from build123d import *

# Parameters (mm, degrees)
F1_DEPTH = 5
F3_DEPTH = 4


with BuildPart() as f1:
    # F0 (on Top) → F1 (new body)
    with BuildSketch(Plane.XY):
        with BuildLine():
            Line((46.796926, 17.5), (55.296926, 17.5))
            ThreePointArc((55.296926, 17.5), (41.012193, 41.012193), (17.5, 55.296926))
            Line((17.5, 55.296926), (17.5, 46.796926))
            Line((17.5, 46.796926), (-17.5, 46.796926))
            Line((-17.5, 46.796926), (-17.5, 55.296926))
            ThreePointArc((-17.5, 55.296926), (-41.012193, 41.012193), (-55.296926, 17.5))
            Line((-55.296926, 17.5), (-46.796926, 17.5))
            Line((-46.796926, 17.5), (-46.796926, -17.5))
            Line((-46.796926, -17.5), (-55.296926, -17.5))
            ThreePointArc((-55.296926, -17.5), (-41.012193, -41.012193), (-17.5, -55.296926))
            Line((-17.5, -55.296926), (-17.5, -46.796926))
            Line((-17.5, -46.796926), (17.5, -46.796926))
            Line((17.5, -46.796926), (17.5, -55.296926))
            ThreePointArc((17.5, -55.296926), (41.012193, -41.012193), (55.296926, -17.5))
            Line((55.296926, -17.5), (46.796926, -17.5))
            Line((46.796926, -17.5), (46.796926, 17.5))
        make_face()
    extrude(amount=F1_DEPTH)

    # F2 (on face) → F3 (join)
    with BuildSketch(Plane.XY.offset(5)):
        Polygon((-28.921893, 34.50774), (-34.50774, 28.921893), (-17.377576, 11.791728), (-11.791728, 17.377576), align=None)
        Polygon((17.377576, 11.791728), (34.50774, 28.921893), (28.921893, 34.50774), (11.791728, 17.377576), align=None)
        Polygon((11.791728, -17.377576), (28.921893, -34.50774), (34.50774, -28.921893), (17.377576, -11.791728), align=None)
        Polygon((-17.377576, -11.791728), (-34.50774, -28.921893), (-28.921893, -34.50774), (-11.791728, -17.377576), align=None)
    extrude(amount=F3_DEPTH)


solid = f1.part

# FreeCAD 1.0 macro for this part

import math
import FreeCAD as App
import Part
import Sketcher
from FreeCAD import Vector


def add_polygon(sketch, points):
    """Adds a closed chain of lines whose ends are joined by coincident constraints."""
    first, n = sketch.GeometryCount, len(points)
    for a, b in zip(points, points[1:] + points[:1]):
        sketch.addGeometry(Part.LineSegment(App.Vector(*a, 0), App.Vector(*b, 0)), False)
    for i in range(n):
        sketch.addConstraint(Sketcher.Constraint("Coincident", first + i, 2, first + (i + 1) % n, 1))

doc = App.newDocument("Part")
params = doc.addObject("Spreadsheet::Sheet", "Params")
for row, (alias, value) in enumerate([
    ("sketch1_width", "35 mm"),
    ("sketch1_width2", "8.5 mm"),
    ("pad1_length", "5 mm"),
    ("pad2_length", "4 mm"),
], start=1):
    params.set(f"A{row}", alias)
    params.set(f"B{row}", "=" + value)
    params.setAlias(f"B{row}", alias)

body = doc.addObject("PartDesign::Body", "Body")

# Sketch on XY plane
sketch1 = doc.addObject("Sketcher::SketchObject", "Sketch")
body.addObject(sketch1)
sketch1.AttachmentSupport = (doc.XY_Plane, [""])
sketch1.MapMode = "FlatFace"
sketch1.addGeometry(Part.LineSegment(Vector(47, 18, 0), Vector(55, 18, 0)), False)
sketch1.addGeometry(Part.ArcOfCircle(Part.Circle(Vector(0, 0, 0), Vector(0, 0, 1), 58), math.radians(18), math.radians(72)), False)
sketch1.addGeometry(Part.LineSegment(Vector(18, 55, 0), Vector(18, 47, 0)), False)
sketch1.addGeometry(Part.LineSegment(Vector(18, 47, 0), Vector(-18, 47, 0)), False)
sketch1.addGeometry(Part.LineSegment(Vector(-18, 47, 0), Vector(-18, 55, 0)), False)
sketch1.addGeometry(Part.ArcOfCircle(Part.Circle(Vector(0, 0, 0), Vector(0, 0, 1), 58), math.radians(108), math.radians(162)), False)
sketch1.addGeometry(Part.LineSegment(Vector(-55, 18, 0), Vector(-47, 18, 0)), False)
sketch1.addGeometry(Part.LineSegment(Vector(-47, 18, 0), Vector(-47, -18, 0)), False)
sketch1.addGeometry(Part.LineSegment(Vector(-47, -18, 0), Vector(-55, -18, 0)), False)
sketch1.addGeometry(Part.ArcOfCircle(Part.Circle(Vector(0, 0, 0), Vector(0, 0, 1), 58), math.radians(-162), math.radians(-108)), False)
sketch1.addGeometry(Part.LineSegment(Vector(-18, -55, 0), Vector(-18, -47, 0)), False)
sketch1.addGeometry(Part.LineSegment(Vector(-18, -47, 0), Vector(18, -47, 0)), False)
sketch1.addGeometry(Part.LineSegment(Vector(18, -47, 0), Vector(18, -55, 0)), False)
sketch1.addGeometry(Part.ArcOfCircle(Part.Circle(Vector(0, 0, 0), Vector(0, 0, 1), 58), math.radians(-72), math.radians(-18)), False)
sketch1.addGeometry(Part.LineSegment(Vector(55, -18, 0), Vector(47, -18, 0)), False)
sketch1.addGeometry(Part.LineSegment(Vector(47, -18, 0), Vector(47, 18, 0)), False)
sketch1.addConstraint(Sketcher.Constraint("Coincident", 0, 2, 1, 1))
sketch1.addConstraint(Sketcher.Constraint("Coincident", 1, 2, 2, 1))
sketch1.addConstraint(Sketcher.Constraint("Coincident", 2, 2, 3, 1))
sketch1.addConstraint(Sketcher.Constraint("Coincident", 3, 2, 4, 1))
sketch1.addConstraint(Sketcher.Constraint("Coincident", 4, 2, 5, 1))
sketch1.addConstraint(Sketcher.Constraint("Coincident", 5, 2, 6, 1))
sketch1.addConstraint(Sketcher.Constraint("Coincident", 6, 2, 7, 1))
sketch1.addConstraint(Sketcher.Constraint("Coincident", 7, 2, 8, 1))
sketch1.addConstraint(Sketcher.Constraint("Coincident", 8, 2, 9, 1))
sketch1.addConstraint(Sketcher.Constraint("Coincident", 9, 2, 10, 1))
sketch1.addConstraint(Sketcher.Constraint("Coincident", 10, 2, 11, 1))
sketch1.addConstraint(Sketcher.Constraint("Coincident", 11, 2, 12, 1))
sketch1.addConstraint(Sketcher.Constraint("Coincident", 12, 2, 13, 1))
sketch1.addConstraint(Sketcher.Constraint("Coincident", 13, 2, 14, 1))
sketch1.addConstraint(Sketcher.Constraint("Coincident", 14, 2, 15, 1))
sketch1.addConstraint(Sketcher.Constraint("Coincident", 15, 2, 0, 1))
sketch1.addConstraint(Sketcher.Constraint("Horizontal", 0))
sketch1.addConstraint(Sketcher.Constraint("Vertical", 2))
sketch1.addConstraint(Sketcher.Constraint("Horizontal", 3))
sketch1.addConstraint(Sketcher.Constraint("Vertical", 4))
sketch1.addConstraint(Sketcher.Constraint("Horizontal", 6))
sketch1.addConstraint(Sketcher.Constraint("Vertical", 7))
sketch1.addConstraint(Sketcher.Constraint("Horizontal", 8))
sketch1.addConstraint(Sketcher.Constraint("Vertical", 10))
sketch1.addConstraint(Sketcher.Constraint("Horizontal", 11))
sketch1.addConstraint(Sketcher.Constraint("Vertical", 12))
sketch1.addConstraint(Sketcher.Constraint("Horizontal", 14))
sketch1.addConstraint(Sketcher.Constraint("Vertical", 15))
sketch1.addConstraint(Sketcher.Constraint("Coincident", 1, 3, -1, 1))
sketch1.addConstraint(Sketcher.Constraint("Coincident", 5, 3, -1, 1))
sketch1.addConstraint(Sketcher.Constraint("Coincident", 9, 3, -1, 1))
sketch1.addConstraint(Sketcher.Constraint("Coincident", 13, 3, -1, 1))
sketch1.addConstraint(Sketcher.Constraint("Equal", 1, 5))
sketch1.addConstraint(Sketcher.Constraint("Equal", 5, 9))
sketch1.addConstraint(Sketcher.Constraint("Equal", 9, 13))
sketch1.addConstraint(Sketcher.Constraint("Symmetric", 2, 2, 10, 2, -1, 1))
sketch1.addConstraint(Sketcher.Constraint("Symmetric", 6, 2, 14, 2, -1, 1))
sketch1.addConstraint(Sketcher.Constraint("Horizontal", 1, 2, 4, 2))
sketch1.addConstraint(Sketcher.Constraint("Horizontal", 0, 2, 5, 2))
sketch1.addConstraint(Sketcher.Constraint("Horizontal", 9, 2, 12, 2))
sketch1.addConstraint(Sketcher.Constraint("Horizontal", 8, 2, 13, 2))
sketch1.addConstraint(Sketcher.Constraint("Equal", 14, 2))
sketch1.addConstraint(Sketcher.Constraint("Equal", 11, 7))
sketch1.addConstraint(Sketcher.Constraint("DistanceX", 3, 2, 3, 1, 35.0))
sketch1.addConstraint(Sketcher.Constraint("DistanceX", 0, 1, 0, 2, 8.5))
sketch1.addConstraint(Sketcher.Constraint("Radius", 1, 58.000005))
sketch1.setExpression("Constraints[43]", "Params.sketch1_width")
sketch1.setExpression("Constraints[44]", "Params.sketch1_width2")
pad1 = doc.addObject("PartDesign::Pad", "Pad")
body.addObject(pad1)
pad1.Profile = sketch1
pad1.setExpression("Length", "Params.pad1_length")

# Sketch on XY plane
sketch2 = doc.addObject("Sketcher::SketchObject", "Sketch001")
body.addObject(sketch2)
sketch2.AttachmentSupport = (doc.XY_Plane, [""])
sketch2.MapMode = "FlatFace"
sketch2.AttachmentOffset = App.Placement(Vector(0, 0, 5), App.Rotation())
add_polygon(sketch2, [(-29, 35), (-35, 29), (-17, 12), (-12, 17)])  # lines 0-3
add_polygon(sketch2, [(17, 12), (35, 29), (29, 35), (12, 17)])  # lines 4-7
add_polygon(sketch2, [(12, -17), (29, -35), (35, -29), (17, -12)])  # lines 8-11
add_polygon(sketch2, [(-17, -12), (-35, -29), (-29, -35), (-12, -17)])  # lines 12-15
sketch2.addConstraint(Sketcher.Constraint("Symmetric", 3, 2, 8, 2, -1, 1))
sketch2.addConstraint(Sketcher.Constraint("Symmetric", 0, 2, 9, 2, -1, 1))
sketch2.addConstraint(Sketcher.Constraint("Symmetric", 1, 2, 10, 2, -1, 1))
sketch2.addConstraint(Sketcher.Constraint("Symmetric", 2, 2, 11, 2, -1, 1))
sketch2.addConstraint(Sketcher.Constraint("Symmetric", 4, 2, 12, 2, -1, 1))
sketch2.addConstraint(Sketcher.Constraint("Symmetric", 5, 2, 13, 2, -1, 1))
sketch2.addConstraint(Sketcher.Constraint("Symmetric", 6, 2, 14, 2, -1, 1))
sketch2.addConstraint(Sketcher.Constraint("Symmetric", 7, 2, 15, 2, -1, 1))
sketch2.addConstraint(Sketcher.Constraint("Symmetric", 0, 2, 4, 2, -2))
sketch2.addConstraint(Sketcher.Constraint("Symmetric", 3, 2, 5, 2, -2))
sketch2.addConstraint(Sketcher.Constraint("Symmetric", 2, 2, 6, 2, -2))
sketch2.addConstraint(Sketcher.Constraint("Symmetric", 1, 2, 7, 2, -2))
sketch2.addConstraint(Sketcher.Constraint("Perpendicular", 0, 1))
sketch2.addConstraint(Sketcher.Constraint("Perpendicular", 1, 2))
sketch2.addConstraint(Sketcher.Constraint("Perpendicular", 2, 3))
sketch2.addConstraint(Sketcher.Constraint("Perpendicular", 3, 4))
sketch2.addConstraint(Sketcher.Constraint("Distance", 0, 7.899581))
sketch2.addConstraint(Sketcher.Constraint("Distance", 1, 24.225711))
sketch2.addConstraint(Sketcher.Constraint("DistanceX", 0, 2, -1, 1, 34.50774))
sketch2.addConstraint(Sketcher.Constraint("DistanceY", -1, 1, 1, 2, 11.791728))
pad2 = doc.addObject("PartDesign::Pad", "Pad001")
body.addObject(pad2)
pad2.Profile = sketch2
pad2.setExpression("Length", "Params.pad2_length")

doc.recompute()
